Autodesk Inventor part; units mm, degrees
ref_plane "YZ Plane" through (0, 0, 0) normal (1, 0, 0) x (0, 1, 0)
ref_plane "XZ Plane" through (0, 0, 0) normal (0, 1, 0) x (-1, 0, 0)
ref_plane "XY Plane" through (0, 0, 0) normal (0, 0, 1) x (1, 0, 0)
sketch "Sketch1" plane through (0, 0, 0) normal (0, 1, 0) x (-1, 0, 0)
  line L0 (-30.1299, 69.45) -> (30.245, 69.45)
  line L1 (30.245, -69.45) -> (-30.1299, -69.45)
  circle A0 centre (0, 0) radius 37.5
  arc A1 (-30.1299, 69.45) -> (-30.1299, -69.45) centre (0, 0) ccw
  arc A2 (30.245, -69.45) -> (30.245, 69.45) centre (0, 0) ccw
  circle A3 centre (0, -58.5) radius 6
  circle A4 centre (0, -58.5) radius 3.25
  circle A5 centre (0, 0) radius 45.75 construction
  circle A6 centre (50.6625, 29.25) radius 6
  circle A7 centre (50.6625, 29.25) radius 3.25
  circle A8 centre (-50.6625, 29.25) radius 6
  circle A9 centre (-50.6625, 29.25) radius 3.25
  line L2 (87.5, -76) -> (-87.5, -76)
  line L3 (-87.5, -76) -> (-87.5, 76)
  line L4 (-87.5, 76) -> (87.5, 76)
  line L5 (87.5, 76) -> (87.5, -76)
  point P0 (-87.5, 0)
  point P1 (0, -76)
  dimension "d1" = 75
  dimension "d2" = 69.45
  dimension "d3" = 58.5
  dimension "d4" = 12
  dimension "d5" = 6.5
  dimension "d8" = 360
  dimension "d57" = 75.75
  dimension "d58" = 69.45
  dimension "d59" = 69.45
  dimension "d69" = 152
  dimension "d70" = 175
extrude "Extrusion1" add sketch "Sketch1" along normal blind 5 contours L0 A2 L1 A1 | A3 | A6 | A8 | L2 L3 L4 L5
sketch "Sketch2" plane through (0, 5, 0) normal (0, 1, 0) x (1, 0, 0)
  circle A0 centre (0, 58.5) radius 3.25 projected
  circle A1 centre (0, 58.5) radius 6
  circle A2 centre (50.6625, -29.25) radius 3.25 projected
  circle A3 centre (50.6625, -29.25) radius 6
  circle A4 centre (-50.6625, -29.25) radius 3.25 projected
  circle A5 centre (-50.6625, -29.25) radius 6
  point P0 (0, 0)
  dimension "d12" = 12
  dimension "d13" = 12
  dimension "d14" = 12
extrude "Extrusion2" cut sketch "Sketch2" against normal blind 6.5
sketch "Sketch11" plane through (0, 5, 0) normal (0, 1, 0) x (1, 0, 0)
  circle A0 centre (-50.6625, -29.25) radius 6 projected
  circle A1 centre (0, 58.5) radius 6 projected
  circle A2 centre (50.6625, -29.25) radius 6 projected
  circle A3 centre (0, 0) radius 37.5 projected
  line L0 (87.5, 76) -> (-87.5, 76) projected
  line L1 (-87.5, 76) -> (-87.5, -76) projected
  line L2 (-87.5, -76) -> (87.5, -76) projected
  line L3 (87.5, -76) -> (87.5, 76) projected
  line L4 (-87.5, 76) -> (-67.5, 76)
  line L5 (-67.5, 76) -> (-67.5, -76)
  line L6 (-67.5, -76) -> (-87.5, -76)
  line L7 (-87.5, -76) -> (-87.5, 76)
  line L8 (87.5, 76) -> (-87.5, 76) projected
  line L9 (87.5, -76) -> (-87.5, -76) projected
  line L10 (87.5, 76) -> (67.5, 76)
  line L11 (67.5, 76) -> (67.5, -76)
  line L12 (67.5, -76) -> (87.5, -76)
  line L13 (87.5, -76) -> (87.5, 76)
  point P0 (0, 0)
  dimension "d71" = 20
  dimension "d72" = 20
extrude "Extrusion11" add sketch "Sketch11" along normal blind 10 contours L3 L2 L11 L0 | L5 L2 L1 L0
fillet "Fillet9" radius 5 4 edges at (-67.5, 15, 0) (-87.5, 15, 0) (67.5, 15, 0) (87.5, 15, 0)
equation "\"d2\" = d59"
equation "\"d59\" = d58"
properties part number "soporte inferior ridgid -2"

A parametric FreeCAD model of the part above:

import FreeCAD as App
import Part
import Sketcher
from FreeCAD import Vector


def edges_at(feature, points):
    """Names of the edges that pass closest to the given points."""
    edges = feature.Shape.Edges
    near = lambda p: min(range(len(edges)), key=lambda i: edges[i].distToShape(Part.Vertex(*p))[0])
    return sorted({f"Edge{near(p) + 1}" for p in points})


def add_polygon(sketch, points):
    """Adds a closed chain of lines whose ends are joined by coincident constraints."""
    first, n = sketch.GeometryCount, len(points)
    for a, b in zip(points, points[1:] + points[:1]):
        sketch.addGeometry(Part.LineSegment(App.Vector(*a, 0), App.Vector(*b, 0)), False)
    for i in range(n):
        sketch.addConstraint(Sketcher.Constraint("Coincident", first + i, 2, first + (i + 1) % n, 1))

doc = App.newDocument("Part")
params = doc.addObject("Spreadsheet::Sheet", "Params")
for row, (alias, value) in enumerate([
    ("sketch1_diameter", "75 mm"),
    ("sketch1_diameter2", "6.5 mm"),
    ("sketch1_width", "175 mm"),
    ("sketch1_height", "152 mm"),
    ("pad1_length", "5 mm"),
    ("sketch2_diameter", "12 mm"),
    ("sketch2_diameter2", "6.5 mm"),
    ("pocket1_length", "6.5 mm"),
    ("sketch3_width", "20 mm"),
    ("sketch3_height", "152 mm"),
    ("pad2_length", "10 mm"),
    ("fillet_radius", "5 mm"),
], start=1):
    params.set(f"A{row}", alias)
    params.set(f"B{row}", "=" + value)
    params.setAlias(f"B{row}", alias)

body = doc.addObject("PartDesign::Body", "Body")

# Sketch on XZ plane
sketch1 = body.newObject("Sketcher::SketchObject", "Sketch")
sketch1.AttachmentSupport = (doc.getObject("XZ_Plane"), [""])
sketch1.MapMode = "FlatFace"
add_polygon(sketch1, [(87.5, -76), (-87.5, -76), (-87.5, 76), (87.5, 76)])  # lines 0-3
sketch1.addGeometry(Part.Circle(Vector(0, 0, 0), Vector(0, 0, 1), 37.5), False)  # 4
sketch1.addGeometry(Part.Circle(Vector(0, -58.5, 0), Vector(0, 0, 1), 3.2), False)  # 5
sketch1.addGeometry(Part.Circle(Vector(50.7, 29.2, 0), Vector(0, 0, 1), 3.2), False)  # 6
sketch1.addGeometry(Part.Circle(Vector(-50.7, 29.2, 0), Vector(0, 0, 1), 3.2), False)  # 7
sketch1.addConstraint([
    Sketcher.Constraint("Horizontal", 0),
    Sketcher.Constraint("Vertical", 1),
    Sketcher.Constraint("Horizontal", 2),
    Sketcher.Constraint("Vertical", 3),
    Sketcher.Constraint("Coincident", 4, 3, -1, 1),
    Sketcher.Constraint("Equal", 5, 6),
    Sketcher.Constraint("Equal", 6, 7),
    Sketcher.Constraint("Symmetric", 0, 2, 2, 2, -1, 1),
    Sketcher.Constraint("Symmetric", 6, 3, 7, 3, -2),
    Sketcher.Constraint("PointOnObject", 5, 3, -2),
    Sketcher.Constraint("Diameter", 4, 75.0),
    Sketcher.Constraint("Diameter", 5, 6.5),
    Sketcher.Constraint("DistanceX", 0, 2, 0, 1, 175.0),
    Sketcher.Constraint("DistanceY", 1, 1, 1, 2, 152.0),
    Sketcher.Constraint("DistanceY", 5, 3, -1, 1, 58.5),
    Sketcher.Constraint("DistanceY", -1, 1, 6, 3, 29.25),
    Sketcher.Constraint("DistanceX", 7, 3, 6, 3, 101.325),
])
sketch1.setExpression("Constraints[14]", "Params.sketch1_diameter")
sketch1.setExpression("Constraints[15]", "Params.sketch1_diameter2")
sketch1.setExpression("Constraints[16]", "Params.sketch1_width")
sketch1.setExpression("Constraints[17]", "Params.sketch1_height")
pad1 = body.newObject("PartDesign::Pad", "Pad")
pad1.Profile = sketch1
pad1.setExpression("Length", "Params.pad1_length")
pad1.Reversed = True

# Sketch on XZ plane
sketch2 = body.newObject("Sketcher::SketchObject", "Sketch001")
sketch2.AttachmentSupport = (doc.getObject("XZ_Plane"), [""])
sketch2.MapMode = "FlatFace"
sketch2.AttachmentOffset = App.Placement(Vector(0, 0, -5), App.Rotation())
sketch2.addGeometry([
    Part.Circle(Vector(0, -58.5, 0), Vector(0, 0, 1), 6),  # 0
    Part.Circle(Vector(0, -58.5, 0), Vector(0, 0, 1), 3.2),  # 1
    Part.Circle(Vector(50.7, 29.2, 0), Vector(0, 0, 1), 6),  # 2
    Part.Circle(Vector(50.7, 29.2, 0), Vector(0, 0, 1), 3.2),  # 3
    Part.Circle(Vector(-50.7, 29.2, 0), Vector(0, 0, 1), 6),  # 4
    Part.Circle(Vector(-50.7, 29.2, 0), Vector(0, 0, 1), 3.2),  # 5
], False)
sketch2.addConstraint([
    Sketcher.Constraint("Coincident", 1, 3, 0, 3),
    Sketcher.Constraint("Coincident", 3, 3, 2, 3),
    Sketcher.Constraint("Coincident", 5, 3, 4, 3),
    Sketcher.Constraint("Equal", 0, 2),
    Sketcher.Constraint("Equal", 1, 3),
    Sketcher.Constraint("Equal", 2, 4),
    Sketcher.Constraint("Equal", 3, 5),
    Sketcher.Constraint("Symmetric", 2, 3, 4, 3, -2),
    Sketcher.Constraint("PointOnObject", 0, 3, -2),
    Sketcher.Constraint("Diameter", 0, 12.0),
    Sketcher.Constraint("Diameter", 1, 6.5),
    Sketcher.Constraint("DistanceY", 0, 3, -1, 1, 58.5),
    Sketcher.Constraint("DistanceY", -1, 1, 2, 3, 29.25),
    Sketcher.Constraint("DistanceX", 4, 3, 2, 3, 101.325),
])
sketch2.setExpression("Constraints[9]", "Params.sketch2_diameter")
sketch2.setExpression("Constraints[10]", "Params.sketch2_diameter2")
pocket1 = body.newObject("PartDesign::Pocket", "Pocket")
pocket1.Profile = sketch2
pocket1.setExpression("Length", "Params.pocket1_length")
pocket1.Reversed = True

# Sketch on XZ plane
sketch3 = body.newObject("Sketcher::SketchObject", "Sketch002")
sketch3.AttachmentSupport = (doc.getObject("XZ_Plane"), [""])
sketch3.MapMode = "FlatFace"
sketch3.AttachmentOffset = App.Placement(Vector(0, 0, -5), App.Rotation())
add_polygon(sketch3, [(88, 76), (88, -76), (68, -76), (68, 76)])  # lines 0-3
add_polygon(sketch3, [(-68, 76), (-68, -76), (-88, -76), (-88, 76)])  # lines 4-7
sketch3.addConstraint([
    Sketcher.Constraint("Vertical", 0),
    Sketcher.Constraint("Horizontal", 1),
    Sketcher.Constraint("Vertical", 2),
    Sketcher.Constraint("Horizontal", 3),
    Sketcher.Constraint("Vertical", 4),
    Sketcher.Constraint("Horizontal", 5),
    Sketcher.Constraint("Vertical", 6),
    Sketcher.Constraint("Horizontal", 7),
    Sketcher.Constraint("Symmetric", 2, 2, 4, 2, -1, 1),
    Sketcher.Constraint("Symmetric", 0, 2, 6, 2, -1, 1),
    Sketcher.Constraint("Horizontal", 1, 2, 4, 2),
    Sketcher.Constraint("DistanceX", 1, 2, 1, 1, 20.0),
    Sketcher.Constraint("DistanceY", 0, 2, 0, 1, 152.0),
    Sketcher.Constraint("DistanceX", 4, 2, 1, 2, 135.0),
])
sketch3.setExpression("Constraints[19]", "Params.sketch3_width")
sketch3.setExpression("Constraints[20]", "Params.sketch3_height")
pad2 = body.newObject("PartDesign::Pad", "Pad001")
pad2.Profile = sketch3
pad2.setExpression("Length", "Params.pad2_length")
pad2.Reversed = True
doc.recompute()

fillet = body.newObject("PartDesign::Fillet", "Fillet")
fillet.Base = (pad2, edges_at(pad2, [
    (-67.5, 15, 0),
    (-87.5, 15, 0),
    (67.5, 15, 0),
    (87.5, 15, 0),
]))
fillet.setExpression("Radius", "Params.fillet_radius")

doc.recompute()
